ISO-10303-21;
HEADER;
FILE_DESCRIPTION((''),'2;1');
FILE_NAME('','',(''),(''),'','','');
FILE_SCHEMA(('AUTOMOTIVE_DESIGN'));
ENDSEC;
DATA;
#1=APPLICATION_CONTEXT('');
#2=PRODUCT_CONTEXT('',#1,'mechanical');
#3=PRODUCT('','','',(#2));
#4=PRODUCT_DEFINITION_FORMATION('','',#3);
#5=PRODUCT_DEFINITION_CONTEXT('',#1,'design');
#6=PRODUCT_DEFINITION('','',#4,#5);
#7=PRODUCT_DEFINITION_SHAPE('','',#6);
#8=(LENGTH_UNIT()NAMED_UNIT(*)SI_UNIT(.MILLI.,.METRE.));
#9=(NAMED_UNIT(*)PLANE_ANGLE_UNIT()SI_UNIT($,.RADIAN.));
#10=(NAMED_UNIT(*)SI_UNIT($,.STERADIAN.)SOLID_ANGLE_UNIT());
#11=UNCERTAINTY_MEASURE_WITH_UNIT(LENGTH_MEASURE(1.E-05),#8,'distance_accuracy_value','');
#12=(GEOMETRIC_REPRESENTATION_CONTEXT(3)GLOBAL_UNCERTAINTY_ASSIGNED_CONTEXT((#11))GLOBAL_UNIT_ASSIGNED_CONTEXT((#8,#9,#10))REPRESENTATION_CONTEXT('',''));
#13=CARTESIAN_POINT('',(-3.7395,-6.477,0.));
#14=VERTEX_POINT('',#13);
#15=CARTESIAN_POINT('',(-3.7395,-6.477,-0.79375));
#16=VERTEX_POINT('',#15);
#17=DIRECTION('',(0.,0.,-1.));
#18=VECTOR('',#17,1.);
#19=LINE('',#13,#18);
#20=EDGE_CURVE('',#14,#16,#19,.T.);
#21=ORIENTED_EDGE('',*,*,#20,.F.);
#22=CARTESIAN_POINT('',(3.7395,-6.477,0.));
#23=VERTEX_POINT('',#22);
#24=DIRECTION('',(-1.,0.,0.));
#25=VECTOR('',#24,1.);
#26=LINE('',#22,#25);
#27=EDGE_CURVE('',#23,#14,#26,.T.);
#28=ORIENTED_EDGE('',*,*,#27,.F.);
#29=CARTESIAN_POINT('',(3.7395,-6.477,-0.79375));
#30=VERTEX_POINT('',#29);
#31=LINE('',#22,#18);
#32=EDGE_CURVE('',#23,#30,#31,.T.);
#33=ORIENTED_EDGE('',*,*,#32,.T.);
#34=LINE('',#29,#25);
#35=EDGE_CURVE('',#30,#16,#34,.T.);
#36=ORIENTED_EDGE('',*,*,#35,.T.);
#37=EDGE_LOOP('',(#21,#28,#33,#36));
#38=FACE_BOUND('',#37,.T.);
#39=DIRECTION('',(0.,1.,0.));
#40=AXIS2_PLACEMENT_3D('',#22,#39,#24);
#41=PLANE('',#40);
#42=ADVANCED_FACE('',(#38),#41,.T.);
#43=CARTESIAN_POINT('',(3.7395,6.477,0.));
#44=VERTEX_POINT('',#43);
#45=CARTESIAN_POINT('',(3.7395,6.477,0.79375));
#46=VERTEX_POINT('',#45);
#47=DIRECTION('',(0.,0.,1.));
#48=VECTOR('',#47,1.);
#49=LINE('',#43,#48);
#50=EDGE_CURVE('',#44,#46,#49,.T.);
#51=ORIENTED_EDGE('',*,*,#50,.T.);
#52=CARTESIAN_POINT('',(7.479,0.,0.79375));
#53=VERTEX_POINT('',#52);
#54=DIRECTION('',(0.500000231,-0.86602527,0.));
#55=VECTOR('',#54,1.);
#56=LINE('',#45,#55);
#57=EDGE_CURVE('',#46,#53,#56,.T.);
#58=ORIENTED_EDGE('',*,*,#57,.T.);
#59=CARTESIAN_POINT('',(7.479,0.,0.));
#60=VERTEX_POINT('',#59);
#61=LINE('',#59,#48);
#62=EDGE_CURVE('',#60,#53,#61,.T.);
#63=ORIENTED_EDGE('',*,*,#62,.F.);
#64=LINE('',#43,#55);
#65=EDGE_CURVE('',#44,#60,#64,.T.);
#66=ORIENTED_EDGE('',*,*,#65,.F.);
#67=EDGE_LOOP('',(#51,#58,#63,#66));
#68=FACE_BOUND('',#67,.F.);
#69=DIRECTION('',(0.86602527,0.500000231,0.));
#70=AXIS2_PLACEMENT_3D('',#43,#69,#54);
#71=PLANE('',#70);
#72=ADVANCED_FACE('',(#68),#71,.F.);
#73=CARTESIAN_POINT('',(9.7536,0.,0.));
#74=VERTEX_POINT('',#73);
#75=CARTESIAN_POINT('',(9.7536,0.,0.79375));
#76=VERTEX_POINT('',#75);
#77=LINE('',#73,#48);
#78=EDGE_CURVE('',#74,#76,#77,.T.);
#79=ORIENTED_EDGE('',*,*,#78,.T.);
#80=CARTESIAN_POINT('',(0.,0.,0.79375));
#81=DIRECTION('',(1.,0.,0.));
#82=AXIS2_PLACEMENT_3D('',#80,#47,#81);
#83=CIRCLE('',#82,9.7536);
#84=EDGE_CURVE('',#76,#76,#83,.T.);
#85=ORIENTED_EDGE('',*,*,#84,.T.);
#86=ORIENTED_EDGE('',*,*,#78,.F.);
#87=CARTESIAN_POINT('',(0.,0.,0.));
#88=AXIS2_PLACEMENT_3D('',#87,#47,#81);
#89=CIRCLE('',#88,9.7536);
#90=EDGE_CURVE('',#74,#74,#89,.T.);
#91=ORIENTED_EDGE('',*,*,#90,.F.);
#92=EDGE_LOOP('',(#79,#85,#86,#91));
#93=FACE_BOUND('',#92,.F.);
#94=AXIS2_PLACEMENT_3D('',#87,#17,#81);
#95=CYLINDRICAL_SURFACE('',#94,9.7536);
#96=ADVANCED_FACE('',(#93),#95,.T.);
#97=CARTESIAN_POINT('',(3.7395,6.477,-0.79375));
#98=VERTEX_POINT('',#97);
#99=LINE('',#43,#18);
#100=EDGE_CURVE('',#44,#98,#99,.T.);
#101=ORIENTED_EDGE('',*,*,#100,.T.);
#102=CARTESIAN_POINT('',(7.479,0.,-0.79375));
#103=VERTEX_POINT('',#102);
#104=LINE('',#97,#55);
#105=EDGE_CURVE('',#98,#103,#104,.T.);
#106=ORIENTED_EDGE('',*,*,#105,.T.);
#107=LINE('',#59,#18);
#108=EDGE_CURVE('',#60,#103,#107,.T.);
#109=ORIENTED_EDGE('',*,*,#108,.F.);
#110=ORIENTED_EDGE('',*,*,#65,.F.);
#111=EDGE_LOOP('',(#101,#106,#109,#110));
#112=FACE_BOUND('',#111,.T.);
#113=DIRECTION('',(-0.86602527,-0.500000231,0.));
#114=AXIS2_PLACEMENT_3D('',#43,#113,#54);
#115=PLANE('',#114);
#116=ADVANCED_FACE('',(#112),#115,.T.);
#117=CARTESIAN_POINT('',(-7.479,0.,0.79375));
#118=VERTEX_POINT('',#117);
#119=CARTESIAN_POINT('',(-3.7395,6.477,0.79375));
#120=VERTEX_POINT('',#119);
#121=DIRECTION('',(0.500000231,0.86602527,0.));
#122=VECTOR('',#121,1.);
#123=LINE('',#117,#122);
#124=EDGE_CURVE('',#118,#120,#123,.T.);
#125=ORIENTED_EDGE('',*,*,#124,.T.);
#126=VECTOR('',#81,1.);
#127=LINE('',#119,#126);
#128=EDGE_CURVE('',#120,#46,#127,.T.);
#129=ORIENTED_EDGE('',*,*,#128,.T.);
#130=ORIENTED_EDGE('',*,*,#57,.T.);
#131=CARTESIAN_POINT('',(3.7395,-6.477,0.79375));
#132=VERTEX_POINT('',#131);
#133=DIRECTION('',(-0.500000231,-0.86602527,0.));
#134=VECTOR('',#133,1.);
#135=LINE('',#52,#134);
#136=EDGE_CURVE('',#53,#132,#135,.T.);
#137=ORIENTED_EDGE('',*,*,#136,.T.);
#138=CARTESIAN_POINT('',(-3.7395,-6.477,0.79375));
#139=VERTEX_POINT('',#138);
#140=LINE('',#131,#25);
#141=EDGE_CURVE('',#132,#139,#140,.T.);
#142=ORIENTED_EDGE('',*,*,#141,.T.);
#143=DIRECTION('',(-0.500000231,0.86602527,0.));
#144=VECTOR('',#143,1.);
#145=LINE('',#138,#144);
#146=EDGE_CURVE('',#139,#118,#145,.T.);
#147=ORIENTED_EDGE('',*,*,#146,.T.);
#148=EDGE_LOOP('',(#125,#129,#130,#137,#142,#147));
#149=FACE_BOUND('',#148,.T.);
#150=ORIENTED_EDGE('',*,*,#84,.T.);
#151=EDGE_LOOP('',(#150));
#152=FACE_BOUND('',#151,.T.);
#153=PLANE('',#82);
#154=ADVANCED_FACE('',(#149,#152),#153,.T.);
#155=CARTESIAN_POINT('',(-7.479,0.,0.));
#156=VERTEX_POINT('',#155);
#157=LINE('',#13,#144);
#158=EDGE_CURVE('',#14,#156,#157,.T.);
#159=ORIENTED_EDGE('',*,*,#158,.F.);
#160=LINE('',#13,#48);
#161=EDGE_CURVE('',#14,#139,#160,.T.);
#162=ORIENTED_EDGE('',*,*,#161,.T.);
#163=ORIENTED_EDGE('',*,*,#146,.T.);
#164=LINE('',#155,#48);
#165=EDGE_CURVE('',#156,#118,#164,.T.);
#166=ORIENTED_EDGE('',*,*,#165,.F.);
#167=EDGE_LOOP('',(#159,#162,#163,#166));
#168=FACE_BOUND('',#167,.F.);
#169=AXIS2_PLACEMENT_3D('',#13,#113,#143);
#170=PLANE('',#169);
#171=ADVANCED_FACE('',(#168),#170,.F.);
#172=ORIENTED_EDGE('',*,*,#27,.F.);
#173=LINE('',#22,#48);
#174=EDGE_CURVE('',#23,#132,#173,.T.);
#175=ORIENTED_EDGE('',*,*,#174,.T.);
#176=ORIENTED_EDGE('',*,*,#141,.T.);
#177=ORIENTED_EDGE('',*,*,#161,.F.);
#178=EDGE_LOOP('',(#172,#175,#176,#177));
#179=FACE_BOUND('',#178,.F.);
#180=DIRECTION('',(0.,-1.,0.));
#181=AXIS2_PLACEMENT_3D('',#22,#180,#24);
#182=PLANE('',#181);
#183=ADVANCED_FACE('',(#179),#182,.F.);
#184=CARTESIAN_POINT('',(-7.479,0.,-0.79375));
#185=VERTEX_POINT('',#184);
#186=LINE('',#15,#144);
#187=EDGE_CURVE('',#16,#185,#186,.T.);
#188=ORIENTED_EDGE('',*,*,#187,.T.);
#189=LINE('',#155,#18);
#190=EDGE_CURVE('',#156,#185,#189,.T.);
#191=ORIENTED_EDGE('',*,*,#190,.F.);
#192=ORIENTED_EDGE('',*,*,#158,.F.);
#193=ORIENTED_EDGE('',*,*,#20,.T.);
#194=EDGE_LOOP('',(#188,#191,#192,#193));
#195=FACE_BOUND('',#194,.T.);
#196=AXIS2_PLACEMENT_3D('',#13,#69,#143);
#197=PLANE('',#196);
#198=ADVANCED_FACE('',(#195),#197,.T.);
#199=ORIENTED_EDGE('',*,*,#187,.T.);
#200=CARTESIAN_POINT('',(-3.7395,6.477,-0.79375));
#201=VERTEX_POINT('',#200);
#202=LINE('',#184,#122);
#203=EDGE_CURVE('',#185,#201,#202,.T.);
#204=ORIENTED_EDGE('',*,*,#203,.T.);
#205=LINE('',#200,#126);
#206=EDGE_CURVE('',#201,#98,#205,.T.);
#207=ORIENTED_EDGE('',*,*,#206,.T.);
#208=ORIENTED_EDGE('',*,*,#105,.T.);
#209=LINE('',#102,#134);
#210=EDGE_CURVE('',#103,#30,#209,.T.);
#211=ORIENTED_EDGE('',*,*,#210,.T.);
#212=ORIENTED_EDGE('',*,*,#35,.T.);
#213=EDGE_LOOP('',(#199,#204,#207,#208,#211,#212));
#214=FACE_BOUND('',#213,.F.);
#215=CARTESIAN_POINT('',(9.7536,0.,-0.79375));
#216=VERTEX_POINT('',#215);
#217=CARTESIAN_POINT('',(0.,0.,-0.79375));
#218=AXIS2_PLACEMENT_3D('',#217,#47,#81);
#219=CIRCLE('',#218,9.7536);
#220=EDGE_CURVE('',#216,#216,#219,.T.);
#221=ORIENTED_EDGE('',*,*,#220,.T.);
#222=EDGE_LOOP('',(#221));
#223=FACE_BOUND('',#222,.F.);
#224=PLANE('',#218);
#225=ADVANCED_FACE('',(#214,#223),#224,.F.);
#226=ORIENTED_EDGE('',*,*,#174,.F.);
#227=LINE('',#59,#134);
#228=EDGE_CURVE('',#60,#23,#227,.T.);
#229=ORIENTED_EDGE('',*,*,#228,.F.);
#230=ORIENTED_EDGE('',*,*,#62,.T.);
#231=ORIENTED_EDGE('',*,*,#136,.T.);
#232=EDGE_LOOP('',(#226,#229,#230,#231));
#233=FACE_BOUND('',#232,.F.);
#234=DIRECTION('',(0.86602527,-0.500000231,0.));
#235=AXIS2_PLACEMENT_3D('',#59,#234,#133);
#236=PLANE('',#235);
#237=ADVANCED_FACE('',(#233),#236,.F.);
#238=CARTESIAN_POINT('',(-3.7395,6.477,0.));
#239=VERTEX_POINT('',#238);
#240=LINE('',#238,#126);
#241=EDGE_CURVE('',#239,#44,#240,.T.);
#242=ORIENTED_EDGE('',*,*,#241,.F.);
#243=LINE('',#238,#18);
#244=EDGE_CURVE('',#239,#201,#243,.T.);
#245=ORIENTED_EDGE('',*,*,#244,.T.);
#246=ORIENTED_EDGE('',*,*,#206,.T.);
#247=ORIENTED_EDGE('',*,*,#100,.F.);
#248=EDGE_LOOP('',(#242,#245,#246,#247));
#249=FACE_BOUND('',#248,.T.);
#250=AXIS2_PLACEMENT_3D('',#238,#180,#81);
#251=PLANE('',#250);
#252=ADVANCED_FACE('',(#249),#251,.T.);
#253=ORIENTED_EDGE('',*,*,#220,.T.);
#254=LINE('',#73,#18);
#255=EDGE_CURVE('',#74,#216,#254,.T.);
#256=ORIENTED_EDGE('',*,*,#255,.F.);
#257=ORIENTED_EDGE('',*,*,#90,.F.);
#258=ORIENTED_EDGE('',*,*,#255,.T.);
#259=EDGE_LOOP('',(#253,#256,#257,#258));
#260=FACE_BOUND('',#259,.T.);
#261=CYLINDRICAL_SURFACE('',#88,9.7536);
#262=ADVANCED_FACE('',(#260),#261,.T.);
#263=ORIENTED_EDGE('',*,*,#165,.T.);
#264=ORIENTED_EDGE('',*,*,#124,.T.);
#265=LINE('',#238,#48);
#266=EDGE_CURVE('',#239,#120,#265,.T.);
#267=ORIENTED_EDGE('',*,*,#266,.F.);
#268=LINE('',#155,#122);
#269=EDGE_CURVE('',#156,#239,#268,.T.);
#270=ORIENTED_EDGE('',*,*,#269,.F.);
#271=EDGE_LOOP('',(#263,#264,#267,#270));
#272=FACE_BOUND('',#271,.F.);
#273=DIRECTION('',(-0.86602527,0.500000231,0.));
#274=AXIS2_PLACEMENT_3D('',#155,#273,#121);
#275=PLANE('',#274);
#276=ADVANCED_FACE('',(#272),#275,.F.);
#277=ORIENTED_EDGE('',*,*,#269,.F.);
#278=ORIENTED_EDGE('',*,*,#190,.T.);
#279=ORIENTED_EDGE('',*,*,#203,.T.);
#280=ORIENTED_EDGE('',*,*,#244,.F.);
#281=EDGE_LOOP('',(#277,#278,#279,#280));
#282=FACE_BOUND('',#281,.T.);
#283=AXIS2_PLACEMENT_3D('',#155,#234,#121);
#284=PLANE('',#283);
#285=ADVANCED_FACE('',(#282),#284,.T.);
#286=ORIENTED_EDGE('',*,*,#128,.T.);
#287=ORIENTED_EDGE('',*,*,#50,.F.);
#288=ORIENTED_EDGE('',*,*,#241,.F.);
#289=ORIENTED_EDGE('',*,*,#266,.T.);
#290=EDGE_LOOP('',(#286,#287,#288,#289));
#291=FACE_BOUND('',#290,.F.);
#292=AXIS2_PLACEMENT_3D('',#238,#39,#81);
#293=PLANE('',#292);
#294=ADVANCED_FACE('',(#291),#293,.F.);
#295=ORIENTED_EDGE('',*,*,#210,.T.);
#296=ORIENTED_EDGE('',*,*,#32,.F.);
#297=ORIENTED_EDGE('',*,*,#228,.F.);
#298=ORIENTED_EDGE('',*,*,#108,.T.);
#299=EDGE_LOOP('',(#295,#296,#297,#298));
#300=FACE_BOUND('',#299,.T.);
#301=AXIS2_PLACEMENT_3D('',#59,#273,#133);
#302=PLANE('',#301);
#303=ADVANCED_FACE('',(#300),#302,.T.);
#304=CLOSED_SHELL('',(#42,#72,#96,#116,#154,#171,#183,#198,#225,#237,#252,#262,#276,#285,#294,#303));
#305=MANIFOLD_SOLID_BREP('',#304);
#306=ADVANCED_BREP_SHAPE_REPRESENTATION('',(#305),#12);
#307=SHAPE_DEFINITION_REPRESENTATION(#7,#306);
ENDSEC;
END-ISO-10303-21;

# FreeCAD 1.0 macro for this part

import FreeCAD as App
import Part
import Sketcher

V = App.Vector
Q = App.Units.Quantity

doc = App.newDocument("Part")
body = doc.addObject("PartDesign::Body", "Body")

# Sketch on XY plane
sketch1 = body.newObject("Sketcher::SketchObject", "Sketch")
sketch1.AttachmentSupport = (doc.getObject("XY_Plane"), [""])
sketch1.MapMode = "FlatFace"
sketch1.addGeometry([
    Part.Circle(V(0, 0, 0), V(0, 0, 1), 10),  # 0
    Part.LineSegment(V(7, 0, 0), V(4, -6, 0)),  # 1
    Part.LineSegment(V(4, -6, 0), V(-4, -6, 0)),  # 2
    Part.LineSegment(V(-4, -6, 0), V(-7, 0, 0)),  # 3
    Part.LineSegment(V(-7, 0, 0), V(-4, 6, 0)),  # 4
    Part.LineSegment(V(-4, 6, 0), V(4, 6, 0)),  # 5
    Part.LineSegment(V(4, 6, 0), V(7, 0, 0)),  # 6
], False)
sketch1.addConstraint([
    Sketcher.Constraint("Coincident", 1, 2, 2, 1),
    Sketcher.Constraint("Coincident", 2, 2, 3, 1),
    Sketcher.Constraint("Coincident", 3, 2, 4, 1),
    Sketcher.Constraint("Coincident", 4, 2, 5, 1),
    Sketcher.Constraint("Coincident", 5, 2, 6, 1),
    Sketcher.Constraint("Coincident", 6, 2, 1, 1),
    Sketcher.Constraint("Horizontal", 2),
    Sketcher.Constraint("Horizontal", 5),
    Sketcher.Constraint("Coincident", 0, 3, -1, 1),
    Sketcher.Constraint("Symmetric", 1, 2, 4, 2, -1, 1),
    Sketcher.Constraint("Symmetric", 3, 2, 6, 2, -1, 1),
    Sketcher.Constraint("PointOnObject", 3, 2, -1),
    Sketcher.Constraint("Parallel", 3, 6),
    Sketcher.Constraint("Vertical", 2, 2, 4, 2),
    Sketcher.Constraint("Diameter", 0, Q("0.768 in")),
    Sketcher.Constraint("DistanceY", 2, 2, 4, 2, Q("0.51 in")),
    Sketcher.Constraint("Angle", 1, Q("-120 deg")),
    Sketcher.Constraint("DistanceX", 2, 2, 2, 1, 7.479),
])
pad1 = body.newObject("PartDesign::Pad", "Pad")
pad1.Profile = sketch1
pad1.Length = Q("0.0625 in")
pad1.Midplane = True

doc.recompute()
